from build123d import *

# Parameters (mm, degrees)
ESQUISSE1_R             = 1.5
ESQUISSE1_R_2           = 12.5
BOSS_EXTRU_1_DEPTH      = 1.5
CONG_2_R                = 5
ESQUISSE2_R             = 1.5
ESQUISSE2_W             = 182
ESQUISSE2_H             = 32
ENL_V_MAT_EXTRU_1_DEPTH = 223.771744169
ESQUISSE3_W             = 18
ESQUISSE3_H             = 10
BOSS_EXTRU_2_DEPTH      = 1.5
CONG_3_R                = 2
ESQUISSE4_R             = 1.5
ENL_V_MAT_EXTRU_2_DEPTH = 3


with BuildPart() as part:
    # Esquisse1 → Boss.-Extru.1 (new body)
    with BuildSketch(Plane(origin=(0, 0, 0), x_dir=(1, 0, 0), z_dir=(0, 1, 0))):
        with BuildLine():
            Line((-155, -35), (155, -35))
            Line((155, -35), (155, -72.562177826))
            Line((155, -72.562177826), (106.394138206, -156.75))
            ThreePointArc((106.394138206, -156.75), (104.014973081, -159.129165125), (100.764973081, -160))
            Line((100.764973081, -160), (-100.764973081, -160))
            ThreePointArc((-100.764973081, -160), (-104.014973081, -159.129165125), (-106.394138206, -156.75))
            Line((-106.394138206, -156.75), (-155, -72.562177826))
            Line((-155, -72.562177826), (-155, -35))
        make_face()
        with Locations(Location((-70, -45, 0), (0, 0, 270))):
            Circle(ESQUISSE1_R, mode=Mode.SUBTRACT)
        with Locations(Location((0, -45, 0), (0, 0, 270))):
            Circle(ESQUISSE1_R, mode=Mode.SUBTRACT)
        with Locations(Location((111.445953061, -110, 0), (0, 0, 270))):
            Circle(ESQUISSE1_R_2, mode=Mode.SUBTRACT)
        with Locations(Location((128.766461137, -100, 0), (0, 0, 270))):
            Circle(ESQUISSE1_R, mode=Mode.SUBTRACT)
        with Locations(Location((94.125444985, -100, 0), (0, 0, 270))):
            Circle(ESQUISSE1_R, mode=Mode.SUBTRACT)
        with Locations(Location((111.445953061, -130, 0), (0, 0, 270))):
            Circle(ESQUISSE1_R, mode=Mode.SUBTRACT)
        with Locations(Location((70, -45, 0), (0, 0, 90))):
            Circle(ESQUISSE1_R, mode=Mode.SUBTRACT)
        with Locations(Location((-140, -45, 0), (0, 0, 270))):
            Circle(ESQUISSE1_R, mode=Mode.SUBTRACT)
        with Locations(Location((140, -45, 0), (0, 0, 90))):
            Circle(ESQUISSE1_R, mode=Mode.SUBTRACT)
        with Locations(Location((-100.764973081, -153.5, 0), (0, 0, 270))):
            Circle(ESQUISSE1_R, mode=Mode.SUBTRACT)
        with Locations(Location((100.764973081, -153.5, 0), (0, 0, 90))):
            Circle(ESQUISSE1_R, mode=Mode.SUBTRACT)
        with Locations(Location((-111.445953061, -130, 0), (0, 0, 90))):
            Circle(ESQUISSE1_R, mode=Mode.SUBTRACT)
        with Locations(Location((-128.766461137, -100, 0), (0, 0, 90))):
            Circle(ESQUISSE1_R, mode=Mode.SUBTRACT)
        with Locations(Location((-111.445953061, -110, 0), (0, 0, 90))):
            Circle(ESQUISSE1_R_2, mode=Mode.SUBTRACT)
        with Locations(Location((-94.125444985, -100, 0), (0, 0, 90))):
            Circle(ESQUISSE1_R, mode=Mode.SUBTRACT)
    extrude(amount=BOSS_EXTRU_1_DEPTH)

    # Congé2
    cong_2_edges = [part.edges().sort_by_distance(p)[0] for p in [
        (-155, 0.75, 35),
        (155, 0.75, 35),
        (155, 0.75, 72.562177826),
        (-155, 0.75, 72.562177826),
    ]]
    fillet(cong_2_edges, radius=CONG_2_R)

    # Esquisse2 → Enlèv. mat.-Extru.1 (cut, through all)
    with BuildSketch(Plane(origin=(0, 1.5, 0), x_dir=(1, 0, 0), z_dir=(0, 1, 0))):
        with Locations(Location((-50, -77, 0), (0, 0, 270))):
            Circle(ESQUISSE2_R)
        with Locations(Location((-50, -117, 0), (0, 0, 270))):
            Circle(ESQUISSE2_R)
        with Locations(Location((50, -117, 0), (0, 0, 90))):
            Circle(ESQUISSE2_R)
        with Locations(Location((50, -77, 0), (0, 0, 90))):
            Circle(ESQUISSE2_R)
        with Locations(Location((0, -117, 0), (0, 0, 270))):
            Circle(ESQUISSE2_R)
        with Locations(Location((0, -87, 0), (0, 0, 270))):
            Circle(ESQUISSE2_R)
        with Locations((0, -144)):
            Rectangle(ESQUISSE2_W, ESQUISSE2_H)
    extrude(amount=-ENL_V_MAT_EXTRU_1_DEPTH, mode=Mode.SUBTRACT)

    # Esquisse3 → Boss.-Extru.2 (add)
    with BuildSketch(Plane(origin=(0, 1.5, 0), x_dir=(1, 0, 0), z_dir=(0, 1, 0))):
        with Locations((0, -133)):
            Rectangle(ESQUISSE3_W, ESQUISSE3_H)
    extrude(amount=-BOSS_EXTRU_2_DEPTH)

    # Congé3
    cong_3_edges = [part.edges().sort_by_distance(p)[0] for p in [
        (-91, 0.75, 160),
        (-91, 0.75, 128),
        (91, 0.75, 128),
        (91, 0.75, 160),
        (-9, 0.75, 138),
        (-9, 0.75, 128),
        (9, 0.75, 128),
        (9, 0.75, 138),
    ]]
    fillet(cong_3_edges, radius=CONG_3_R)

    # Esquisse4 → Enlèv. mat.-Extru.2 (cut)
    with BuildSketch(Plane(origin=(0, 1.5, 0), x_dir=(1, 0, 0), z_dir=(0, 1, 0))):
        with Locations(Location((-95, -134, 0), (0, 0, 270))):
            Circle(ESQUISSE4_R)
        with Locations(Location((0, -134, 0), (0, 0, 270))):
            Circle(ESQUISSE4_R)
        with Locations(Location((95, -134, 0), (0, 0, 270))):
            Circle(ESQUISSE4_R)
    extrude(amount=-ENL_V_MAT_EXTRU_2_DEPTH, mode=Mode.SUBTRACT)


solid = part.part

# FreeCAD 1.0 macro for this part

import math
import FreeCAD as App
import Part
import Sketcher
Q = App.Units.Quantity


def edges_at(feature, points):
    """Names of the edges that pass closest to the given points."""
    edges = feature.Shape.Edges
    near = lambda p: min(range(len(edges)), key=lambda i: edges[i].distToShape(Part.Vertex(*p))[0])
    return sorted({f"Edge{near(p) + 1}" for p in points})


def add_polygon(sketch, points):
    """Adds a closed chain of lines whose ends are joined by coincident constraints."""
    first, n = sketch.GeometryCount, len(points)
    for a, b in zip(points, points[1:] + points[:1]):
        sketch.addGeometry(Part.LineSegment(App.Vector(*a, 0), App.Vector(*b, 0)), False)
    for i in range(n):
        sketch.addConstraint(Sketcher.Constraint("Coincident", first + i, 2, first + (i + 1) % n, 1))

doc = App.newDocument("Part")
body = doc.addObject("PartDesign::Body", "Body")

sketch1 = body.newObject("Sketcher::SketchObject", "Sketch")
sketch1.AttachmentSupport = (doc.getObject("XZ_Plane"), [""])
sketch1.MapMode = "FlatFace"
sketch1.addGeometry([
    Part.LineSegment(App.Vector(155, 35, 0), App.Vector(-155, 35, 0)),
    Part.LineSegment(App.Vector(-155, 35, 0), App.Vector(-155, 72.6, 0)),
    Part.LineSegment(App.Vector(-155, 72.6, 0), App.Vector(-106.4, 156.8, 0)),
    Part.ArcOfCircle(Part.Circle(App.Vector(-100.8, 153.5, 0), App.Vector(0, 0, 1), 6.5), math.radians(90), math.radians(150)),
    Part.LineSegment(App.Vector(-100.8, 160, 0), App.Vector(100.8, 160, 0)),
    Part.ArcOfCircle(Part.Circle(App.Vector(100.8, 153.5, 0), App.Vector(0, 0, 1), 6.5), math.radians(30), math.radians(90)),
    Part.LineSegment(App.Vector(106.4, 156.8, 0), App.Vector(155, 72.6, 0)),
    Part.LineSegment(App.Vector(155, 72.6, 0), App.Vector(155, 35, 0)),
    Part.Circle(App.Vector(100.8, 153.5, 0), App.Vector(0, 0, 1), 1.5),
    Part.Circle(App.Vector(111.4, 130, 0), App.Vector(0, 0, 1), 1.5),
    Part.Circle(App.Vector(111.4, 110, 0), App.Vector(0, 0, 1), 12.5),
    Part.Circle(App.Vector(128.8, 100, 0), App.Vector(0, 0, 1), 1.5),
    Part.Circle(App.Vector(94.1, 100, 0), App.Vector(0, 0, 1), 1.5),
    Part.Circle(App.Vector(-100.8, 153.5, 0), App.Vector(0, 0, 1), 1.5),
    Part.Circle(App.Vector(-111.4, 130, 0), App.Vector(0, 0, 1), 1.5),
    Part.Circle(App.Vector(-94.1, 100, 0), App.Vector(0, 0, 1), 1.5),
    Part.Circle(App.Vector(-111.4, 110, 0), App.Vector(0, 0, 1), 12.5),
    Part.Circle(App.Vector(-128.8, 100, 0), App.Vector(0, 0, 1), 1.5),
    Part.Circle(App.Vector(140, 45, 0), App.Vector(0, 0, 1), 1.5),
    Part.Circle(App.Vector(70, 45, 0), App.Vector(0, 0, 1), 1.5),
    Part.Circle(App.Vector(0, 45, 0), App.Vector(0, 0, 1), 1.5),
    Part.Circle(App.Vector(-70, 45, 0), App.Vector(0, 0, 1), 1.5),
    Part.Circle(App.Vector(-140, 45, 0), App.Vector(0, 0, 1), 1.5),
], False)
sketch1.addConstraint([
    Sketcher.Constraint("Coincident", 0, 2, 1, 1),
    Sketcher.Constraint("Coincident", 1, 2, 2, 1),
    Sketcher.Constraint("Tangent", 2, 2, 3, 2),
    Sketcher.Constraint("Tangent", 3, 1, 4, 1),
    Sketcher.Constraint("Tangent", 4, 2, 5, 2),
    Sketcher.Constraint("Tangent", 5, 1, 6, 1),
    Sketcher.Constraint("Coincident", 6, 2, 7, 1),
    Sketcher.Constraint("Coincident", 7, 2, 0, 1),
    Sketcher.Constraint("Horizontal", 0),
    Sketcher.Constraint("Vertical", 1),
    Sketcher.Constraint("Horizontal", 4),
    Sketcher.Constraint("Vertical", 7),
    Sketcher.Constraint("Coincident", 8, 3, 5, 3),
    Sketcher.Constraint("Coincident", 13, 3, 3, 3),
    Sketcher.Constraint("Equal", 3, 5),
    Sketcher.Constraint("Equal", 8, 9),
    Sketcher.Constraint("Equal", 9, 11),
    Sketcher.Constraint("Equal", 11, 12),
    Sketcher.Constraint("Equal", 12, 13),
    Sketcher.Constraint("Equal", 13, 14),
    Sketcher.Constraint("Equal", 14, 15),
    Sketcher.Constraint("Equal", 10, 16),
    Sketcher.Constraint("Equal", 15, 17),
    Sketcher.Constraint("Equal", 17, 18),
    Sketcher.Constraint("Equal", 18, 19),
    Sketcher.Constraint("Equal", 19, 20),
    Sketcher.Constraint("Equal", 20, 21),
    Sketcher.Constraint("Equal", 21, 22),
    Sketcher.Constraint("Symmetric", 9, 3, 14, 3, -2),
    Sketcher.Constraint("Symmetric", 12, 3, 15, 3, -2),
    Sketcher.Constraint("Symmetric", 10, 3, 16, 3, -2),
    Sketcher.Constraint("Symmetric", 11, 3, 17, 3, -2),
    Sketcher.Constraint("Symmetric", 19, 3, 21, 3, -2),
    Sketcher.Constraint("Symmetric", 18, 3, 22, 3, -2),
    Sketcher.Constraint("Symmetric", 2, 2, 5, 1, -2),
    Sketcher.Constraint("PointOnObject", 20, 3, -2),
    Sketcher.Constraint("Horizontal", 11, 3, 12, 3),
    Sketcher.Constraint("Horizontal", 18, 3, 19, 3),
    Sketcher.Constraint("Horizontal", 19, 3, 20, 3),
    Sketcher.Constraint("Horizontal", 1, 2, 6, 2),
    Sketcher.Constraint("Vertical", 9, 3, 10, 3),
    Sketcher.Constraint("Diameter", 8, 3.0),
    Sketcher.Constraint("Diameter", 10, 25.0),
    Sketcher.Constraint("Radius", 3, 6.5),
    Sketcher.Constraint("DistanceX", 0, 2, 0, 1, 310.0),
    Sketcher.Constraint("Angle", 2, Q("60 deg")),
    Sketcher.Constraint("DistanceY", -1, 1, 9, 3, 130.0),
    Sketcher.Constraint("DistanceY", -1, 1, 10, 3, 110.0),
    Sketcher.Constraint("DistanceY", -1, 1, 11, 3, 100.0),
    Sketcher.Constraint("DistanceX", -1, 1, 18, 3, 140.0),
    Sketcher.Constraint("DistanceY", -1, 1, 18, 3, 45.0),
    Sketcher.Constraint("DistanceX", -1, 1, 19, 3, 70.0),
    Sketcher.Constraint("DistanceY", -1, 1, 0, 2, 35.0),
    Sketcher.Constraint("DistanceY", -1, 1, 3, 1, 160.0),
    Sketcher.Constraint("DistanceX", 14, 3, 12, 3, 205.571398),
    Sketcher.Constraint("DistanceX", 4, 1, 4, 2, 201.529946),
    Sketcher.Constraint("DistanceX", -1, 1, 11, 3, 128.766461),
    Sketcher.Constraint("DistanceX", 8, 3, 9, 3, 10.68098),
])
pad1 = body.newObject("PartDesign::Pad", "Pad")
pad1.Profile = sketch1
pad1.Length = 1.5
pad1.Reversed = True
doc.recompute()

fillet = body.newObject("PartDesign::Fillet", "Fillet")
fillet.Base = (pad1, edges_at(pad1, [
    (-155, 0.75, 35),
    (155, 0.75, 35),
    (155, 0.75, 72.562),
    (-155, 0.75, 72.562),
]))
fillet.Radius = 5

sketch2 = body.newObject("Sketcher::SketchObject", "Sketch001")
sketch2.AttachmentSupport = (doc.getObject("XZ_Plane"), [""])
sketch2.MapMode = "FlatFace"
sketch2.AttachmentOffset = App.Placement(App.Vector(0, 0, -1.5), App.Rotation())
sketch2.addGeometry(Part.Circle(App.Vector(-50, 77, 0), App.Vector(0, 0, 1), 1.5), False)
sketch2.addGeometry(Part.Circle(App.Vector(-50, 117, 0), App.Vector(0, 0, 1), 1.5), False)
sketch2.addGeometry(Part.Circle(App.Vector(50, 117, 0), App.Vector(0, 0, 1), 1.5), False)
sketch2.addGeometry(Part.Circle(App.Vector(50, 77, 0), App.Vector(0, 0, 1), 1.5), False)
sketch2.addGeometry(Part.Circle(App.Vector(0, 117, 0), App.Vector(0, 0, 1), 1.5), False)
sketch2.addGeometry(Part.Circle(App.Vector(0, 87, 0), App.Vector(0, 0, 1), 1.5), False)
add_polygon(sketch2, [(-91, 128), (-91, 160), (91, 160), (91, 128)])
sketch2.addConstraint([
    Sketcher.Constraint("Vertical", 6),
    Sketcher.Constraint("Horizontal", 7),
    Sketcher.Constraint("Vertical", 8),
    Sketcher.Constraint("Horizontal", 9),
    Sketcher.Constraint("Equal", 0, 1),
    Sketcher.Constraint("Equal", 1, 2),
    Sketcher.Constraint("Equal", 2, 3),
    Sketcher.Constraint("Equal", 3, 4),
    Sketcher.Constraint("Equal", 4, 5),
    Sketcher.Constraint("Symmetric", 1, 3, 2, 3, -2),
    Sketcher.Constraint("Symmetric", 0, 3, 3, 3, -2),
    Sketcher.Constraint("PointOnObject", 4, 3, -2),
    Sketcher.Constraint("PointOnObject", 5, 3, -2),
    Sketcher.Constraint("Horizontal", 2, 3, 4, 3),
    Sketcher.Constraint("Vertical", 0, 3, 1, 3),
    Sketcher.Constraint("Diameter", 0, 3.0),
    Sketcher.Constraint("DistanceX", 7, 1, 7, 2, 182.0),
    Sketcher.Constraint("DistanceY", 6, 1, 6, 2, 32.0),
    Sketcher.Constraint("DistanceX", 0, 3, -1, 1, 50.0),
    Sketcher.Constraint("DistanceY", -1, 1, 0, 3, 77.0),
    Sketcher.Constraint("DistanceY", -1, 1, 1, 3, 117.0),
    Sketcher.Constraint("DistanceY", -1, 1, 5, 3, 87.0),
    Sketcher.Constraint("DistanceX", 6, 2, -1, 1, 91.0),
    Sketcher.Constraint("DistanceY", -1, 1, 6, 2, 160.0),
])
pocket1 = body.newObject("PartDesign::Pocket", "Pocket")
pocket1.Profile = sketch2
pocket1.Type = "ThroughAll"
pocket1.Reversed = True

sketch3 = body.newObject("Sketcher::SketchObject", "Sketch002")
sketch3.AttachmentSupport = (doc.getObject("XZ_Plane"), [""])
sketch3.MapMode = "FlatFace"
sketch3.AttachmentOffset = App.Placement(App.Vector(0, 0, -1.5), App.Rotation())
add_polygon(sketch3, [(-9, 128), (-9, 138), (9, 138), (9, 128)])
sketch3.addConstraint([
    Sketcher.Constraint("Vertical", 0),
    Sketcher.Constraint("Horizontal", 1),
    Sketcher.Constraint("Vertical", 2),
    Sketcher.Constraint("Horizontal", 3),
    Sketcher.Constraint("DistanceX", 1, 1, 1, 2, 18.0),
    Sketcher.Constraint("DistanceY", 0, 1, 0, 2, 10.0),
    Sketcher.Constraint("DistanceX", 0, 2, -1, 1, 9.0),
    Sketcher.Constraint("DistanceY", -1, 1, 0, 2, 138.0),
])
pad2 = body.newObject("PartDesign::Pad", "Pad001")
pad2.Profile = sketch3
pad2.Length = 1.5
doc.recompute()

fillet2 = body.newObject("PartDesign::Fillet", "Fillet001")
fillet2.Base = (pad2, edges_at(pad2, [
    (-91, 0.75, 160),
    (-91, 0.75, 128),
    (91, 0.75, 128),
    (91, 0.75, 160),
    (-9, 0.75, 138),
    (-9, 0.75, 128),
    (9, 0.75, 128),
    (9, 0.75, 138),
]))
fillet2.Radius = 2

sketch4 = body.newObject("Sketcher::SketchObject", "Sketch003")
sketch4.AttachmentSupport = (doc.getObject("XZ_Plane"), [""])
sketch4.MapMode = "FlatFace"
sketch4.AttachmentOffset = App.Placement(App.Vector(0, 0, -1.5), App.Rotation())
sketch4.addGeometry([
    Part.Circle(App.Vector(-95, 134, 0), App.Vector(0, 0, 1), 1.5),
    Part.Circle(App.Vector(0, 134, 0), App.Vector(0, 0, 1), 1.5),
    Part.Circle(App.Vector(95, 134, 0), App.Vector(0, 0, 1), 1.5),
], False)
sketch4.addConstraint([
    Sketcher.Constraint("Equal", 0, 1),
    Sketcher.Constraint("Equal", 1, 2),
    Sketcher.Constraint("Symmetric", 0, 3, 2, 3, -2),
    Sketcher.Constraint("PointOnObject", 1, 3, -2),
    Sketcher.Constraint("Horizontal", 0, 3, 1, 3),
    Sketcher.Constraint("Diameter", 0, 3.0),
    Sketcher.Constraint("DistanceX", 0, 3, -1, 1, 95.0),
    Sketcher.Constraint("DistanceY", -1, 1, 0, 3, 134.0),
])
pocket2 = body.newObject("PartDesign::Pocket", "Pocket001")
pocket2.Profile = sketch4
pocket2.Length = 3
pocket2.Reversed = True

doc.recompute()
